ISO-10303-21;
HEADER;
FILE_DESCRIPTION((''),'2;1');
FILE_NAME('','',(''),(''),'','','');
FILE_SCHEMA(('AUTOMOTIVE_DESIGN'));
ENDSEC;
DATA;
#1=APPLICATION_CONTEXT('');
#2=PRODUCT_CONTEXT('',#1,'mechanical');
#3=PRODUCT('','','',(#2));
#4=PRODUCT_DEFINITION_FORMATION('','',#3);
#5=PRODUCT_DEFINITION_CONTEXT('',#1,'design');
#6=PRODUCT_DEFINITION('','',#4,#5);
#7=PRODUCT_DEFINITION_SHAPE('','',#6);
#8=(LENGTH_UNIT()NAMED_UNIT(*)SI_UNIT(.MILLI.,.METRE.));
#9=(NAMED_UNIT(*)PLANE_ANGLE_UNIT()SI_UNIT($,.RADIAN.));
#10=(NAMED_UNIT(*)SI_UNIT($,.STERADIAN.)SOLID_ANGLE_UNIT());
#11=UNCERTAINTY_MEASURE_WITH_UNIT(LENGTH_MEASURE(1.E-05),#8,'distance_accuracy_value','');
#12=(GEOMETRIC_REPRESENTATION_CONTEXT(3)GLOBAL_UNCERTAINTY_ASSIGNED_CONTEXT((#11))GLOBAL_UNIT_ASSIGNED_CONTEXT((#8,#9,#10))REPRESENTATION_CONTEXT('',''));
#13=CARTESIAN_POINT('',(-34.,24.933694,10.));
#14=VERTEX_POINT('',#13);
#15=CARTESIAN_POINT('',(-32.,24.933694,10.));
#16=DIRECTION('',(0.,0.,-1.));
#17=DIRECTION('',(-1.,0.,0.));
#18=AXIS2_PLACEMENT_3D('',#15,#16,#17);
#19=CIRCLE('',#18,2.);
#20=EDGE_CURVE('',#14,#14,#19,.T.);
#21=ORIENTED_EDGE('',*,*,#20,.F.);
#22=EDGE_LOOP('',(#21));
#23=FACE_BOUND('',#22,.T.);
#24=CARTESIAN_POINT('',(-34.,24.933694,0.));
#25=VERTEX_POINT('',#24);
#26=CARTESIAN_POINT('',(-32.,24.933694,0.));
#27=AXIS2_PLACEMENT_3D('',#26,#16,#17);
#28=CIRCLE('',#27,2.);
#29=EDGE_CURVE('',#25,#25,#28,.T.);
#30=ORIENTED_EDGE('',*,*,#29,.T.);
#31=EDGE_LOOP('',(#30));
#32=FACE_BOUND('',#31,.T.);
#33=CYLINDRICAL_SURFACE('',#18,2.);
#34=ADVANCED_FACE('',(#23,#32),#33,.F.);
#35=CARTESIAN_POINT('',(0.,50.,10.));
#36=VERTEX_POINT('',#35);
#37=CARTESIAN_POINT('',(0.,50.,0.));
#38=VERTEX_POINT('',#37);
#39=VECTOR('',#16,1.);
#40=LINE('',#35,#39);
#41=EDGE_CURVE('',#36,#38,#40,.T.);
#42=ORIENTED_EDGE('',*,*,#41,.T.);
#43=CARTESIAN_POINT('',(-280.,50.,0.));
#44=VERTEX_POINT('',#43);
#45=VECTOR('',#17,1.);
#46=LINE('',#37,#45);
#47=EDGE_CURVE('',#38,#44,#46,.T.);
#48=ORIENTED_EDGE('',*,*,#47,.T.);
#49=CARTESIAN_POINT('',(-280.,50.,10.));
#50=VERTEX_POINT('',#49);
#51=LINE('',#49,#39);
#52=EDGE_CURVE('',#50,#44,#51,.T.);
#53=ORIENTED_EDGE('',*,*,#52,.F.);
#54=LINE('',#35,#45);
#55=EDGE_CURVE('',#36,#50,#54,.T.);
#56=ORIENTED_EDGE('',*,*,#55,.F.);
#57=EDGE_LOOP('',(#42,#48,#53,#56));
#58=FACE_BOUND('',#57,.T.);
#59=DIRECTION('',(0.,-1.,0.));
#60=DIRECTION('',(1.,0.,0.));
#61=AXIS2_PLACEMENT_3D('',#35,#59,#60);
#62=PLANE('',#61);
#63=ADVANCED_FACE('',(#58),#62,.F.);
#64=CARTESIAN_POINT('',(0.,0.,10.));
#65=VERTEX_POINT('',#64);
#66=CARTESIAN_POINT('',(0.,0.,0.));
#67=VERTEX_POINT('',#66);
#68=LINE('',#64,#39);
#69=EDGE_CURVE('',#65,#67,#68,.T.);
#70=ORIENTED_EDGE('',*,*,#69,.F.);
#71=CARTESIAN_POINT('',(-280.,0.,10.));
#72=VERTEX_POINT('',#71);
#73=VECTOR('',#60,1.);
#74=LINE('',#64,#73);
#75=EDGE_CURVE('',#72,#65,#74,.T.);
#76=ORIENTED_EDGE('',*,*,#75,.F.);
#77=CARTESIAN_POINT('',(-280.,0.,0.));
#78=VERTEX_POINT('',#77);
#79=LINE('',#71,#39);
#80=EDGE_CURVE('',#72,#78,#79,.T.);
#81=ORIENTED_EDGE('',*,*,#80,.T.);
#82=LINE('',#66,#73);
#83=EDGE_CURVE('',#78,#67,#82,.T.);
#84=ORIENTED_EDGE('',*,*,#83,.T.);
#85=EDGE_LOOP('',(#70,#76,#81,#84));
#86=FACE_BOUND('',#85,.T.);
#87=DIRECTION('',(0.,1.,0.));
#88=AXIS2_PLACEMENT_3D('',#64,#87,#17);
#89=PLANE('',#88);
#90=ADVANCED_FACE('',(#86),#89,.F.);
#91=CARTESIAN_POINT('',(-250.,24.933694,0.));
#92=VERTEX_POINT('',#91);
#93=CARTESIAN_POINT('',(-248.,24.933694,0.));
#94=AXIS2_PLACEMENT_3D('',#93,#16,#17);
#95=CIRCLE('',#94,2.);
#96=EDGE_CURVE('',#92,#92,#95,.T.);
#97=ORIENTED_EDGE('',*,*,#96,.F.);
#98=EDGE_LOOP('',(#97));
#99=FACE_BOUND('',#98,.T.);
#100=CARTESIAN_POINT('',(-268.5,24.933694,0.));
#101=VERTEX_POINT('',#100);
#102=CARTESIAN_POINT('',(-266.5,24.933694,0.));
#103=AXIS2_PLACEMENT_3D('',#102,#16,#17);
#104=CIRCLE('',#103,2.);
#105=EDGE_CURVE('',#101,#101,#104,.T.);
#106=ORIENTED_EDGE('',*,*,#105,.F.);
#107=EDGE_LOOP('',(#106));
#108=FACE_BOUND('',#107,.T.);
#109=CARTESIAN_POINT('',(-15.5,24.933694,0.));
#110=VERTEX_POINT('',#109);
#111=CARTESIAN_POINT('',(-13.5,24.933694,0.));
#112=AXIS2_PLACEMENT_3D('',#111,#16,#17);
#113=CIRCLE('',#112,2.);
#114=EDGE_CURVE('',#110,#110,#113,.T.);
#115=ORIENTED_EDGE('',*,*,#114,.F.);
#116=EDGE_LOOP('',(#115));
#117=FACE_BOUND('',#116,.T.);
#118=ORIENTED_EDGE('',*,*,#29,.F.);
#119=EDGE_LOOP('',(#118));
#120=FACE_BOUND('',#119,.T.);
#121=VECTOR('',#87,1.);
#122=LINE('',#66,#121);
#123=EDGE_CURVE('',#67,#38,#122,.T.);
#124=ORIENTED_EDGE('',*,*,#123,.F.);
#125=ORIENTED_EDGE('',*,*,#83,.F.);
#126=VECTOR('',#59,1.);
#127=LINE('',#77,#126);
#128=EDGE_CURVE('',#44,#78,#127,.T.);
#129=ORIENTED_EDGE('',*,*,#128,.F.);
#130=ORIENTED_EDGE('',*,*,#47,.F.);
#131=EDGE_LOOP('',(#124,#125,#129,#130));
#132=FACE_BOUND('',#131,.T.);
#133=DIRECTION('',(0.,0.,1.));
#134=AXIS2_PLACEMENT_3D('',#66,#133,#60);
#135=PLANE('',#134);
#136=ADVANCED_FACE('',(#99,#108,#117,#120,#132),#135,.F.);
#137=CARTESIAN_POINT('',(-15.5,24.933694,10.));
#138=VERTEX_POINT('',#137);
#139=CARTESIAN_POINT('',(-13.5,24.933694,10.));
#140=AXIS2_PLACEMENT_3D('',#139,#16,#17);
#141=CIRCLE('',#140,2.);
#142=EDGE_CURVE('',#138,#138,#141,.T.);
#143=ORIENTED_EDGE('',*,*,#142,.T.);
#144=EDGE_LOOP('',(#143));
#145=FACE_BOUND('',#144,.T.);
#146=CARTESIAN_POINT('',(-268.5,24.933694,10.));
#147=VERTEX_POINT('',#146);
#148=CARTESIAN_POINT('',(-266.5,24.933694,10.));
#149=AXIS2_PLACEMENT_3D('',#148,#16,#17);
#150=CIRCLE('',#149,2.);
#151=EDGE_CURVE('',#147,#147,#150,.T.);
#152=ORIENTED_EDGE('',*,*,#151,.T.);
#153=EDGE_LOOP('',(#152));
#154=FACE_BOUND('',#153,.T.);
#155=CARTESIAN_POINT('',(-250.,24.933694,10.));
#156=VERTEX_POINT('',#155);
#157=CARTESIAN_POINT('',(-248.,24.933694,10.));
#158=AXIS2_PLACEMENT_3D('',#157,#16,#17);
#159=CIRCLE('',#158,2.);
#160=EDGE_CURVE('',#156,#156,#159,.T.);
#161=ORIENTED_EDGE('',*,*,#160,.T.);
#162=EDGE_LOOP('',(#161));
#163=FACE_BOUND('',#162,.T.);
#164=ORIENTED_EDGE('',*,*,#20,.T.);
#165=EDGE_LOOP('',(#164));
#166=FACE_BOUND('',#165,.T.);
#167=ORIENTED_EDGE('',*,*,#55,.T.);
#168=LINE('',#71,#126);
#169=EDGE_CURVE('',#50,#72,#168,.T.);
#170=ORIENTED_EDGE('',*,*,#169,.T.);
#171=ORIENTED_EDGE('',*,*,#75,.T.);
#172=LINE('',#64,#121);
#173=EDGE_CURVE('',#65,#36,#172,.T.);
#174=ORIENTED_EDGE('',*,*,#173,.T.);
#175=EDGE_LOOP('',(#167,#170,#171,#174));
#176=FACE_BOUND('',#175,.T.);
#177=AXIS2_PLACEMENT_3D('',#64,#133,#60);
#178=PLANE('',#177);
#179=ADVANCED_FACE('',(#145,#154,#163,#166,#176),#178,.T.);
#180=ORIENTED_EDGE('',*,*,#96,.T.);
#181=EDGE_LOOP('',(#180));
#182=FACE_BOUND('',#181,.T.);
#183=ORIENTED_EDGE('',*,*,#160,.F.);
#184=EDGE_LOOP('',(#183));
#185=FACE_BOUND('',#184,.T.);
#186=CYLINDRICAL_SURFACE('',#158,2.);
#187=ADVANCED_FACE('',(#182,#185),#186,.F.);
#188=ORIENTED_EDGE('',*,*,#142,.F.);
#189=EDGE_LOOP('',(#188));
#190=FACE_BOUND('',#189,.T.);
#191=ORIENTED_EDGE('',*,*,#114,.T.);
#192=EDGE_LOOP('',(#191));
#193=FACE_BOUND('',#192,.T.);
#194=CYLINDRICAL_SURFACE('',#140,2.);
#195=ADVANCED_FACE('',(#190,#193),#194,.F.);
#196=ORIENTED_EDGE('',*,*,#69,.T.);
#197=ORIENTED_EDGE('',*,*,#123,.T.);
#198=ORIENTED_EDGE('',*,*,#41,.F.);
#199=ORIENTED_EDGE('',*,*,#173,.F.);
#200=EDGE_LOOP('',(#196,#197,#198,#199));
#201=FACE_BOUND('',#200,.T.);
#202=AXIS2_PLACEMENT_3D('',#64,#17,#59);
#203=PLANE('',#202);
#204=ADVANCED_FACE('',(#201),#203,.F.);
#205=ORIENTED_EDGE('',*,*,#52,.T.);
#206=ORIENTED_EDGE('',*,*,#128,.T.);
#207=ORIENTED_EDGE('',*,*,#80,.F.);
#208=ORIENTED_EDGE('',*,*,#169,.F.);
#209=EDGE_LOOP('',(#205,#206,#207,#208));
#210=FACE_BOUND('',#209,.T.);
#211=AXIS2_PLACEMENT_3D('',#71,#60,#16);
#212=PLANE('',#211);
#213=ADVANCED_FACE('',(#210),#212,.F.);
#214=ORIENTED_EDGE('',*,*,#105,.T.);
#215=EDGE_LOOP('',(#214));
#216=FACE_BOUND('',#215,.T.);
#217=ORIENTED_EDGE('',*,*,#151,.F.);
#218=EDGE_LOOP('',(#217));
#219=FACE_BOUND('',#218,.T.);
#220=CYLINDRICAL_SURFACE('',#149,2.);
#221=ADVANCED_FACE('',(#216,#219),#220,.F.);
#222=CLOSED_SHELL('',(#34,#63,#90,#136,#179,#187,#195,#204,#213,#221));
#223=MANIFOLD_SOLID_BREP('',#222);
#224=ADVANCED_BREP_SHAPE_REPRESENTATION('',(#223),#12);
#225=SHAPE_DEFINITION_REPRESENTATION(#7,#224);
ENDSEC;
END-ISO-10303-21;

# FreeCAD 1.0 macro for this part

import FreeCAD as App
import Part
import Sketcher

V = App.Vector
Q = App.Units.Quantity

doc = App.newDocument("Part")
body = doc.addObject("PartDesign::Body", "Body")

sketch1 = doc.addObject("Sketcher::SketchObject", "Sketch")
body.addObject(sketch1)
sketch1.AttachmentSupport = (doc.XY_Plane, [""])
sketch1.MapMode = "FlatFace"
sketch1.addGeometry(Part.LineSegment(V(-280, 50, 0), V(-280, 0, 0)), False)
sketch1.addGeometry(Part.LineSegment(V(-280, 0, 0), V(0, 0, 0)), False)
sketch1.addGeometry(Part.LineSegment(V(0, 0, 0), V(0, 50, 0)), False)
sketch1.addGeometry(Part.LineSegment(V(0, 50, 0), V(-280, 50, 0)), False)
sketch1.addConstraint(Sketcher.Constraint("Coincident", 0, 2, 1, 1))
sketch1.addConstraint(Sketcher.Constraint("Coincident", 1, 2, 2, 1))
sketch1.addConstraint(Sketcher.Constraint("Coincident", 2, 2, 3, 1))
sketch1.addConstraint(Sketcher.Constraint("Coincident", 3, 2, 0, 1))
sketch1.addConstraint(Sketcher.Constraint("Vertical", 0))
sketch1.addConstraint(Sketcher.Constraint("Horizontal", 1))
sketch1.addConstraint(Sketcher.Constraint("Vertical", 2))
sketch1.addConstraint(Sketcher.Constraint("Horizontal", 3))
sketch1.addConstraint(Sketcher.Constraint("Coincident", 1, 2, -1, 1))
sketch1.addConstraint(Sketcher.Constraint("DistanceX", 1, 1, 1, 2, Q("280 mm")))
sketch1.addConstraint(Sketcher.Constraint("DistanceY", 0, 2, 0, 1, Q("50 mm")))
pad1 = doc.addObject("PartDesign::Pad", "Pad")
body.addObject(pad1)
pad1.Profile = sketch1
pad1.Length = 10

sketch2 = doc.addObject("Sketcher::SketchObject", "Sketch001")
body.addObject(sketch2)
sketch2.AttachmentSupport = (doc.XY_Plane, [""])
sketch2.MapMode = "FlatFace"
sketch2.addGeometry(Part.Circle(V(-248, 24.9, 0), V(0, 0, 1), 2), False)
sketch2.addGeometry(Part.Circle(V(-266.5, 24.9, 0), V(0, 0, 1), 2), False)
sketch2.addGeometry(Part.Circle(V(-13.5, 24.9, 0), V(0, 0, 1), 2), False)
sketch2.addGeometry(Part.Circle(V(-32, 24.9, 0), V(0, 0, 1), 2), False)
sketch2.addConstraint(Sketcher.Constraint("Equal", 0, 1))
sketch2.addConstraint(Sketcher.Constraint("Equal", 1, 2))
sketch2.addConstraint(Sketcher.Constraint("Equal", 2, 3))
sketch2.addConstraint(Sketcher.Constraint("Horizontal", 0, 3, 1, 3))
sketch2.addConstraint(Sketcher.Constraint("Horizontal", 1, 3, 2, 3))
sketch2.addConstraint(Sketcher.Constraint("Horizontal", 2, 3, 3, 3))
sketch2.addConstraint(Sketcher.Constraint("Diameter", 0, Q("4 mm")))
sketch2.addConstraint(Sketcher.Constraint("DistanceX", 0, 3, -1, 1, Q("248 mm")))
sketch2.addConstraint(Sketcher.Constraint("DistanceX", 3, 3, -1, 1, Q("32 mm")))
sketch2.addConstraint(Sketcher.Constraint("DistanceX", 1, 3, 2, 3, Q("253 mm")))
sketch2.addConstraint(Sketcher.Constraint("DistanceX", 1, 3, -1, 1, Q("266.5 mm")))
sketch2.addConstraint(Sketcher.Constraint("DistanceY", -1, 1, 0, 3, Q("24.933694 mm")))
pocket1 = doc.addObject("PartDesign::Pocket", "Pocket")
body.addObject(pocket1)
pocket1.Profile = sketch2
pocket1.Length = 10
pocket1.Reversed = True

doc.recompute()
